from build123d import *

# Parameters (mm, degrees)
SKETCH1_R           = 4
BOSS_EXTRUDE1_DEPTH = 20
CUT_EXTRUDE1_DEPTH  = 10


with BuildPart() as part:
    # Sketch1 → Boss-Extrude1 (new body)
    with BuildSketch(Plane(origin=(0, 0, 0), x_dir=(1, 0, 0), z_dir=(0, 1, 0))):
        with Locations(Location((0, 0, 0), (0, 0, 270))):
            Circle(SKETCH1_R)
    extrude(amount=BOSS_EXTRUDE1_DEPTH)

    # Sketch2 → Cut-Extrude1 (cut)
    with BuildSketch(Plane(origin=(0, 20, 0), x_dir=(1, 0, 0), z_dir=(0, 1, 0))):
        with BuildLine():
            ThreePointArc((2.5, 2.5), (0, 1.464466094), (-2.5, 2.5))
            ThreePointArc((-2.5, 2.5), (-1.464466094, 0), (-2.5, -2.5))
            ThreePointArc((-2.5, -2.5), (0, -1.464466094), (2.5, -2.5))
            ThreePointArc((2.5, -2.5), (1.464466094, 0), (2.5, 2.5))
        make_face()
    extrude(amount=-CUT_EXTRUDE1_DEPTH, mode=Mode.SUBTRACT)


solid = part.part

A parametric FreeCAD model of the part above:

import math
import FreeCAD as App
import Part
import Sketcher

V = App.Vector
Q = App.Units.Quantity

doc = App.newDocument("Part")
body = doc.addObject("PartDesign::Body", "Body")

# Sketch on XZ plane
sketch1 = doc.addObject("Sketcher::SketchObject", "Sketch")
body.addObject(sketch1)
sketch1.AttachmentSupport = (doc.XZ_Plane, [""])
sketch1.MapMode = "FlatFace"
sketch1.addGeometry(Part.Circle(V(0, 0, 0), V(0, 0, 1), 4), False)
sketch1.addConstraint([
    Sketcher.Constraint("Coincident", 0, 3, -1, 1),
    Sketcher.Constraint("Diameter", 0, Q("8 mm")),
])
pad1 = doc.addObject("PartDesign::Pad", "Pad")
body.addObject(pad1)
pad1.Profile = sketch1
pad1.Length = 20
pad1.Reversed = True

# Sketch on XZ plane
sketch2 = doc.addObject("Sketcher::SketchObject", "Sketch001")
body.addObject(sketch2)
sketch2.AttachmentSupport = (doc.XZ_Plane, [""])
sketch2.MapMode = "FlatFace"
sketch2.AttachmentOffset = App.Placement(V(0, 0, -20), App.Rotation())
sketch2.addGeometry([
    Part.ArcOfCircle(Part.Circle(V(0, -5, 0), V(0, 0, 1), 3.5), math.radians(45), math.radians(135)),
    Part.ArcOfCircle(Part.Circle(V(-5, 0, 0), V(0, 0, 1), 3.5), math.radians(-45), math.radians(45)),
    Part.ArcOfCircle(Part.Circle(V(0, 5, 0), V(0, 0, 1), 3.5), math.radians(-135), math.radians(-45)),
    Part.ArcOfCircle(Part.Circle(V(5, 0, 0), V(0, 0, 1), 3.5), math.radians(135), math.radians(225)),
], False)
sketch2.addConstraint([
    Sketcher.Constraint("Tangent", 0, 2, 1, 1),
    Sketcher.Constraint("Tangent", 1, 2, 2, 1),
    Sketcher.Constraint("Tangent", 2, 2, 3, 1),
    Sketcher.Constraint("Tangent", 3, 2, 0, 1),
    Sketcher.Constraint("Equal", 0, 1),
    Sketcher.Constraint("Equal", 1, 2),
    Sketcher.Constraint("Equal", 2, 3),
    Sketcher.Constraint("Symmetric", 0, 3, 2, 3, -1, 1),
    Sketcher.Constraint("PointOnObject", 0, 3, -2),
    Sketcher.Constraint("DistanceY", 0, 3, -1, 1, Q("5 mm")),
    Sketcher.Constraint("DistanceX", 1, 3, -1, 1, Q("5 mm")),
])
pocket1 = doc.addObject("PartDesign::Pocket", "Pocket")
body.addObject(pocket1)
pocket1.Profile = sketch2
pocket1.Length = 10
pocket1.Reversed = True

doc.recompute()
